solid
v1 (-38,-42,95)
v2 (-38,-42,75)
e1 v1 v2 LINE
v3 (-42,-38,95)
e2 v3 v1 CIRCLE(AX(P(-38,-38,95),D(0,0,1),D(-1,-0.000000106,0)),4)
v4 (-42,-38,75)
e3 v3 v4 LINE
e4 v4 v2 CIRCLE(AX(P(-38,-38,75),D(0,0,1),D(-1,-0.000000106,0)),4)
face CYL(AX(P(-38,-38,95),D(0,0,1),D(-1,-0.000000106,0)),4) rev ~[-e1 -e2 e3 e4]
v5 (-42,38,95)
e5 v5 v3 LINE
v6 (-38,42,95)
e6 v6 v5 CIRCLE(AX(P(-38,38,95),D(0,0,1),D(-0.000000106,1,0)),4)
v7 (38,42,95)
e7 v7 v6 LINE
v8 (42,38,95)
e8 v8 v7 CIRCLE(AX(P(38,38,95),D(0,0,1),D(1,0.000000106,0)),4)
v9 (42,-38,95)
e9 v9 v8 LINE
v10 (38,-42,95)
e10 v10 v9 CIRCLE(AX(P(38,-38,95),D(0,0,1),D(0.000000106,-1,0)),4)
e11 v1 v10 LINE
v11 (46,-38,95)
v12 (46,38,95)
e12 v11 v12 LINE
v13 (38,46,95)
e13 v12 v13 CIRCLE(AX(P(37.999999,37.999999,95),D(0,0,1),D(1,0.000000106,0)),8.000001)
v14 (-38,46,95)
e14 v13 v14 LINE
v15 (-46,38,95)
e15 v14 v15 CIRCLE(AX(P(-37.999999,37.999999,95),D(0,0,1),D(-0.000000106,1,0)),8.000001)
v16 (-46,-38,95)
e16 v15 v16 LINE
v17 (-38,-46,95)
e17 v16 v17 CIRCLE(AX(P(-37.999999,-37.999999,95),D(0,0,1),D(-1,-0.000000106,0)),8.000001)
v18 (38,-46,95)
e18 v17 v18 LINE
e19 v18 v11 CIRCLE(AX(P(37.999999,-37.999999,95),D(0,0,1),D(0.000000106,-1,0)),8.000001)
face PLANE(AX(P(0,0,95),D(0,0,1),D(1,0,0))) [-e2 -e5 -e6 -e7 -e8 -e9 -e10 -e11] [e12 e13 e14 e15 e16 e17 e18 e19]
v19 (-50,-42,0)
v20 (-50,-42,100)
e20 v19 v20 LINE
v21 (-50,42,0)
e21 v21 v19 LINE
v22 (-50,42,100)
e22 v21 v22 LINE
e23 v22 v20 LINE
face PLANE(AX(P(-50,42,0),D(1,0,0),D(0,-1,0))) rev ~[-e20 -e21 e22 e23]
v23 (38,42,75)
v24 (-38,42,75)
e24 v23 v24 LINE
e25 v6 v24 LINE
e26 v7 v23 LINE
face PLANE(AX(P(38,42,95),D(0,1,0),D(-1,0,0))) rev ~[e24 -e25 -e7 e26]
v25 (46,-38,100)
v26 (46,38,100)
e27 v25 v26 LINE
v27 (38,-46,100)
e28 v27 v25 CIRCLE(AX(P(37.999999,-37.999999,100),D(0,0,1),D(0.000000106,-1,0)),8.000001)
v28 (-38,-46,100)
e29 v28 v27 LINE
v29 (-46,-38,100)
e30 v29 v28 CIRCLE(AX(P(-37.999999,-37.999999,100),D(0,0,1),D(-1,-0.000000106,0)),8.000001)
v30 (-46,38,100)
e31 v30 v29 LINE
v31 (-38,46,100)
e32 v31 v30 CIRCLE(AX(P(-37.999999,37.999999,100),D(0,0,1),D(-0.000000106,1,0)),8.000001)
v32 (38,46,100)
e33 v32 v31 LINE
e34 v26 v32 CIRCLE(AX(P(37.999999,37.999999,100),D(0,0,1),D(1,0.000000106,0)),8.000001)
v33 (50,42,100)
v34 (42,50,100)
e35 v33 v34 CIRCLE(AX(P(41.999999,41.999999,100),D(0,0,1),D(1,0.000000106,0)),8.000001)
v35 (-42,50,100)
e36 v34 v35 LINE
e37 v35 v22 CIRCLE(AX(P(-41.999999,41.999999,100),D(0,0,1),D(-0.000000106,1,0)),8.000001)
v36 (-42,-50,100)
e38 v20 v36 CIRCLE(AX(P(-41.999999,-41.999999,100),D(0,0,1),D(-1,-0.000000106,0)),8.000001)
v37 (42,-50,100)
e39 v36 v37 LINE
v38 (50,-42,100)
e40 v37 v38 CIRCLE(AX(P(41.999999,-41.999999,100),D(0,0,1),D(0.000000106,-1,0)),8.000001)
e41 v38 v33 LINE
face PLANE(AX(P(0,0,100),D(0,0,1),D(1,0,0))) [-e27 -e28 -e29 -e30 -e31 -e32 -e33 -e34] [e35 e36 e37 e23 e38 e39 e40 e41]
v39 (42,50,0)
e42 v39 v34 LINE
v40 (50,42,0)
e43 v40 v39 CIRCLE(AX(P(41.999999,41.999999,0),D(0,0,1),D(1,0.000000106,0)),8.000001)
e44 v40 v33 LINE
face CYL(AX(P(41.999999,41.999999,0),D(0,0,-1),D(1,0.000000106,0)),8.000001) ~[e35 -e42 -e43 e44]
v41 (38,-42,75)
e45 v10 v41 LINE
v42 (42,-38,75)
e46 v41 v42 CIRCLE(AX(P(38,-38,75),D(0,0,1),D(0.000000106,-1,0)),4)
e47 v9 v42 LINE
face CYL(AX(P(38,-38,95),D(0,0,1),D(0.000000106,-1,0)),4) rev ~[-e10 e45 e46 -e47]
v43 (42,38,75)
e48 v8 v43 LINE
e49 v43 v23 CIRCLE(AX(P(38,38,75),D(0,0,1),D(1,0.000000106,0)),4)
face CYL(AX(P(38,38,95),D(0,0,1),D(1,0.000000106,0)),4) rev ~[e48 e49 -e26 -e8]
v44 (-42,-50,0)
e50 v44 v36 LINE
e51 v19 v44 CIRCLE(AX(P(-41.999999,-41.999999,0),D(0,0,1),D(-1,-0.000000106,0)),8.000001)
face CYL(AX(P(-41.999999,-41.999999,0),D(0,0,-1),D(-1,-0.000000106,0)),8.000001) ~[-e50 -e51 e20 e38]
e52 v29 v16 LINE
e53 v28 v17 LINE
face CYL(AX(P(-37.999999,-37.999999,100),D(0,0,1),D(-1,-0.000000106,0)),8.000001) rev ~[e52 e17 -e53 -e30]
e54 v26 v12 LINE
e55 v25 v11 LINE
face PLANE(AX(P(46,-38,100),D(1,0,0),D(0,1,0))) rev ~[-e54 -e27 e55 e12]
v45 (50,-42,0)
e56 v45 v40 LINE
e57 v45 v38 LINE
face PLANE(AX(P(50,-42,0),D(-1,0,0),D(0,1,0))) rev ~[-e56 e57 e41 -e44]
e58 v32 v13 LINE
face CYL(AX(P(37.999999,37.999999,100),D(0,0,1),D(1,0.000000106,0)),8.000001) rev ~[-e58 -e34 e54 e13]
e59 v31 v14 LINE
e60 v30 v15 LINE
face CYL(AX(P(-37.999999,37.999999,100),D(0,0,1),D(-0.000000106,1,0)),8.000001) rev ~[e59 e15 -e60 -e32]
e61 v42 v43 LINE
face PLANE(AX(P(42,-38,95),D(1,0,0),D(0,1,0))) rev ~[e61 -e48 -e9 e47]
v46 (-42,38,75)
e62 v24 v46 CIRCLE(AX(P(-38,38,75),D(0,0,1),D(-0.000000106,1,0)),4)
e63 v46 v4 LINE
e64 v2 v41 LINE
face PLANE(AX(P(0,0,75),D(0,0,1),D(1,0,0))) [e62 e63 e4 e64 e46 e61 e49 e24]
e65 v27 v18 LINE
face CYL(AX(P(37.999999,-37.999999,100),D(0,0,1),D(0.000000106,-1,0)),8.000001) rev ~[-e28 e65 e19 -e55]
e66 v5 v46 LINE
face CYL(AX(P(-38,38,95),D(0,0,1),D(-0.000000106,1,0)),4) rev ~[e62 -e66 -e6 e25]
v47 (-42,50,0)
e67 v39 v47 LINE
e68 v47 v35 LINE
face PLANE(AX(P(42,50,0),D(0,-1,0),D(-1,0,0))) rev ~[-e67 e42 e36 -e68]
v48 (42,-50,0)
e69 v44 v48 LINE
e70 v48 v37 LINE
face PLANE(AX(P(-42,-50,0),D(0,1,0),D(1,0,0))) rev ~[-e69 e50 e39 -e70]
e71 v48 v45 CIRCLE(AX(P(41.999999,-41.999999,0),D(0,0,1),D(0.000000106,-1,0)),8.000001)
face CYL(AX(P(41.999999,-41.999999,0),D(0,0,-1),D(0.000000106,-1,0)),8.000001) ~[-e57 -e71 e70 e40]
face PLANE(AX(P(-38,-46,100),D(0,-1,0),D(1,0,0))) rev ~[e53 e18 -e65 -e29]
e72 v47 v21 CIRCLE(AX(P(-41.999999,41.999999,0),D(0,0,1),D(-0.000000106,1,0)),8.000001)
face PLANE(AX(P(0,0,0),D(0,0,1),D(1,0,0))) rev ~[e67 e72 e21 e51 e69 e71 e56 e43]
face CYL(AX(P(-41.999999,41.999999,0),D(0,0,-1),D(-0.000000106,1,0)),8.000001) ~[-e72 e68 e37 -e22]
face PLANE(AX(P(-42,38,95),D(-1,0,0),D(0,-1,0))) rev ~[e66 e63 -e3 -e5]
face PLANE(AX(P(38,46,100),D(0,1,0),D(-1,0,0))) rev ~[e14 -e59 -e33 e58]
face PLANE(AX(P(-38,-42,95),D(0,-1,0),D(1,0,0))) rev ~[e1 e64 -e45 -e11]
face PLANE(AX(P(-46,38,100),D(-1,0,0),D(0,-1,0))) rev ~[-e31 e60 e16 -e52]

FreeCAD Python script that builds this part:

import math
import FreeCAD as App
import Part
import Sketcher
Q = App.Units.Quantity

doc = App.newDocument("Part")
params = doc.addObject("Spreadsheet::Sheet", "Params")
for row, (alias, value) in enumerate([
    ("sketch1_radius", "8.000001 mm"),
    ("sketch1_width", "84 mm"),
    ("pad1_length", "100 mm"),
    ("sketch2_radius", "8.000001 mm"),
    ("sketch2_width", "76 mm"),
    ("pocket1_length", "5 mm"),
    ("sketch3_radius", "4 mm"),
    ("sketch3_width", "76 mm"),
    ("pocket2_length", "20 mm"),
], start=1):
    params.set(f"A{row}", alias)
    params.set(f"B{row}", "=" + value)
    params.setAlias(f"B{row}", alias)

body = doc.addObject("PartDesign::Body", "Body")

# Sketch on XY plane
sketch1 = body.newObject("Sketcher::SketchObject", "Sketch")
sketch1.AttachmentSupport = (doc.getObject("XY_Plane"), [""])
sketch1.MapMode = "FlatFace"
sketch1.addGeometry([
    Part.LineSegment(App.Vector(42, 50, 0), App.Vector(-42, 50, 0)),  # 0
    Part.ArcOfCircle(Part.Circle(App.Vector(-42, 42, 0), App.Vector(0, 0, 1), 8), math.radians(90), math.radians(180)),  # 1
    Part.LineSegment(App.Vector(-50, 42, 0), App.Vector(-50, -42, 0)),  # 2
    Part.ArcOfCircle(Part.Circle(App.Vector(-42, -42, 0), App.Vector(0, 0, 1), 8), math.radians(-180), math.radians(-90)),  # 3
    Part.LineSegment(App.Vector(-42, -50, 0), App.Vector(42, -50, 0)),  # 4
    Part.ArcOfCircle(Part.Circle(App.Vector(42, -42, 0), App.Vector(0, 0, 1), 8), math.radians(-90), math.radians(0)),  # 5
    Part.LineSegment(App.Vector(50, -42, 0), App.Vector(50, 42, 0)),  # 6
    Part.ArcOfCircle(Part.Circle(App.Vector(42, 42, 0), App.Vector(0, 0, 1), 8), math.radians(0), math.radians(90)),  # 7
], False)
sketch1.addConstraint([
    Sketcher.Constraint("Tangent", 0, 2, 1, 1),
    Sketcher.Constraint("Tangent", 1, 2, 2, 1),
    Sketcher.Constraint("Tangent", 2, 2, 3, 1),
    Sketcher.Constraint("Tangent", 3, 2, 4, 1),
    Sketcher.Constraint("Tangent", 4, 2, 5, 1),
    Sketcher.Constraint("Tangent", 5, 2, 6, 1),
    Sketcher.Constraint("Tangent", 6, 2, 7, 1),
    Sketcher.Constraint("Tangent", 7, 2, 0, 1),
    Sketcher.Constraint("Horizontal", 0),
    Sketcher.Constraint("Vertical", 2),
    Sketcher.Constraint("Horizontal", 4),
    Sketcher.Constraint("Vertical", 6),
    Sketcher.Constraint("Equal", 1, 3),
    Sketcher.Constraint("Equal", 3, 5),
    Sketcher.Constraint("Equal", 5, 7),
    Sketcher.Constraint("Symmetric", 1, 3, 5, 3, -1, 1),
    Sketcher.Constraint("Equal", 4, 2),
    Sketcher.Constraint("Radius", 1, Q("8.000001 mm")),
    Sketcher.Constraint("DistanceX", 0, 2, 0, 1, Q("84 mm")),
])
sketch1.setExpression("Constraints[17]", "Params.sketch1_radius")
sketch1.setExpression("Constraints[18]", "Params.sketch1_width")
pad1 = body.newObject("PartDesign::Pad", "Pad")
pad1.Profile = sketch1
pad1.setExpression("Length", "Params.pad1_length")

# Sketch on XY plane
sketch2 = body.newObject("Sketcher::SketchObject", "Sketch001")
sketch2.AttachmentSupport = (doc.getObject("XY_Plane"), [""])
sketch2.MapMode = "FlatFace"
sketch2.AttachmentOffset = App.Placement(App.Vector(0, 0, 100), App.Rotation())
sketch2.addGeometry([
    Part.LineSegment(App.Vector(46, -38, 0), App.Vector(46, 38, 0)),  # 0
    Part.ArcOfCircle(Part.Circle(App.Vector(38, 38, 0), App.Vector(0, 0, 1), 8), math.radians(0), math.radians(90)),  # 1
    Part.LineSegment(App.Vector(38, 46, 0), App.Vector(-38, 46, 0)),  # 2
    Part.ArcOfCircle(Part.Circle(App.Vector(-38, 38, 0), App.Vector(0, 0, 1), 8), math.radians(90), math.radians(180)),  # 3
    Part.LineSegment(App.Vector(-46, 38, 0), App.Vector(-46, -38, 0)),  # 4
    Part.ArcOfCircle(Part.Circle(App.Vector(-38, -38, 0), App.Vector(0, 0, 1), 8), math.radians(-180), math.radians(-90)),  # 5
    Part.LineSegment(App.Vector(-38, -46, 0), App.Vector(38, -46, 0)),  # 6
    Part.ArcOfCircle(Part.Circle(App.Vector(38, -38, 0), App.Vector(0, 0, 1), 8), math.radians(-90), math.radians(0)),  # 7
], False)
sketch2.addConstraint([
    Sketcher.Constraint("Tangent", 0, 2, 1, 1),
    Sketcher.Constraint("Tangent", 1, 2, 2, 1),
    Sketcher.Constraint("Tangent", 2, 2, 3, 1),
    Sketcher.Constraint("Tangent", 3, 2, 4, 1),
    Sketcher.Constraint("Tangent", 4, 2, 5, 1),
    Sketcher.Constraint("Tangent", 5, 2, 6, 1),
    Sketcher.Constraint("Tangent", 6, 2, 7, 1),
    Sketcher.Constraint("Tangent", 7, 2, 0, 1),
    Sketcher.Constraint("Vertical", 0),
    Sketcher.Constraint("Horizontal", 2),
    Sketcher.Constraint("Vertical", 4),
    Sketcher.Constraint("Horizontal", 6),
    Sketcher.Constraint("Equal", 1, 3),
    Sketcher.Constraint("Equal", 3, 5),
    Sketcher.Constraint("Equal", 5, 7),
    Sketcher.Constraint("Symmetric", 1, 3, 5, 3, -1, 1),
    Sketcher.Constraint("Equal", 6, 0),
    Sketcher.Constraint("Radius", 1, Q("8.000001 mm")),
    Sketcher.Constraint("DistanceX", 2, 2, 2, 1, Q("76 mm")),
])
sketch2.setExpression("Constraints[17]", "Params.sketch2_radius")
sketch2.setExpression("Constraints[18]", "Params.sketch2_width")
pocket1 = body.newObject("PartDesign::Pocket", "Pocket")
pocket1.Profile = sketch2
pocket1.setExpression("Length", "Params.pocket1_length")

# Sketch on XY plane
sketch3 = body.newObject("Sketcher::SketchObject", "Sketch002")
sketch3.AttachmentSupport = (doc.getObject("XY_Plane"), [""])
sketch3.MapMode = "FlatFace"
sketch3.AttachmentOffset = App.Placement(App.Vector(0, 0, 95), App.Rotation())
sketch3.addGeometry([
    Part.LineSegment(App.Vector(38, 42, 0), App.Vector(-38, 42, 0)),  # 0
    Part.ArcOfCircle(Part.Circle(App.Vector(-38, 38, 0), App.Vector(0, 0, 1), 4), math.radians(90), math.radians(180)),  # 1
    Part.LineSegment(App.Vector(-42, 38, 0), App.Vector(-42, -38, 0)),  # 2
    Part.ArcOfCircle(Part.Circle(App.Vector(-38, -38, 0), App.Vector(0, 0, 1), 4), math.radians(-180), math.radians(-90)),  # 3
    Part.LineSegment(App.Vector(-38, -42, 0), App.Vector(38, -42, 0)),  # 4
    Part.ArcOfCircle(Part.Circle(App.Vector(38, -38, 0), App.Vector(0, 0, 1), 4), math.radians(-90), math.radians(0)),  # 5
    Part.LineSegment(App.Vector(42, -38, 0), App.Vector(42, 38, 0)),  # 6
    Part.ArcOfCircle(Part.Circle(App.Vector(38, 38, 0), App.Vector(0, 0, 1), 4), math.radians(0), math.radians(90)),  # 7
], False)
sketch3.addConstraint([
    Sketcher.Constraint("Tangent", 0, 2, 1, 1),
    Sketcher.Constraint("Tangent", 1, 2, 2, 1),
    Sketcher.Constraint("Tangent", 2, 2, 3, 1),
    Sketcher.Constraint("Tangent", 3, 2, 4, 1),
    Sketcher.Constraint("Tangent", 4, 2, 5, 1),
    Sketcher.Constraint("Tangent", 5, 2, 6, 1),
    Sketcher.Constraint("Tangent", 6, 2, 7, 1),
    Sketcher.Constraint("Tangent", 7, 2, 0, 1),
    Sketcher.Constraint("Horizontal", 0),
    Sketcher.Constraint("Vertical", 2),
    Sketcher.Constraint("Horizontal", 4),
    Sketcher.Constraint("Vertical", 6),
    Sketcher.Constraint("Equal", 1, 3),
    Sketcher.Constraint("Equal", 3, 5),
    Sketcher.Constraint("Equal", 5, 7),
    Sketcher.Constraint("Symmetric", 1, 3, 5, 3, -1, 1),
    Sketcher.Constraint("Equal", 4, 2),
    Sketcher.Constraint("Radius", 1, Q("4 mm")),
    Sketcher.Constraint("DistanceX", 0, 2, 0, 1, Q("76 mm")),
])
sketch3.setExpression("Constraints[17]", "Params.sketch3_radius")
sketch3.setExpression("Constraints[18]", "Params.sketch3_width")
pocket2 = body.newObject("PartDesign::Pocket", "Pocket001")
pocket2.Profile = sketch3
pocket2.setExpression("Length", "Params.pocket2_length")

doc.recompute()
